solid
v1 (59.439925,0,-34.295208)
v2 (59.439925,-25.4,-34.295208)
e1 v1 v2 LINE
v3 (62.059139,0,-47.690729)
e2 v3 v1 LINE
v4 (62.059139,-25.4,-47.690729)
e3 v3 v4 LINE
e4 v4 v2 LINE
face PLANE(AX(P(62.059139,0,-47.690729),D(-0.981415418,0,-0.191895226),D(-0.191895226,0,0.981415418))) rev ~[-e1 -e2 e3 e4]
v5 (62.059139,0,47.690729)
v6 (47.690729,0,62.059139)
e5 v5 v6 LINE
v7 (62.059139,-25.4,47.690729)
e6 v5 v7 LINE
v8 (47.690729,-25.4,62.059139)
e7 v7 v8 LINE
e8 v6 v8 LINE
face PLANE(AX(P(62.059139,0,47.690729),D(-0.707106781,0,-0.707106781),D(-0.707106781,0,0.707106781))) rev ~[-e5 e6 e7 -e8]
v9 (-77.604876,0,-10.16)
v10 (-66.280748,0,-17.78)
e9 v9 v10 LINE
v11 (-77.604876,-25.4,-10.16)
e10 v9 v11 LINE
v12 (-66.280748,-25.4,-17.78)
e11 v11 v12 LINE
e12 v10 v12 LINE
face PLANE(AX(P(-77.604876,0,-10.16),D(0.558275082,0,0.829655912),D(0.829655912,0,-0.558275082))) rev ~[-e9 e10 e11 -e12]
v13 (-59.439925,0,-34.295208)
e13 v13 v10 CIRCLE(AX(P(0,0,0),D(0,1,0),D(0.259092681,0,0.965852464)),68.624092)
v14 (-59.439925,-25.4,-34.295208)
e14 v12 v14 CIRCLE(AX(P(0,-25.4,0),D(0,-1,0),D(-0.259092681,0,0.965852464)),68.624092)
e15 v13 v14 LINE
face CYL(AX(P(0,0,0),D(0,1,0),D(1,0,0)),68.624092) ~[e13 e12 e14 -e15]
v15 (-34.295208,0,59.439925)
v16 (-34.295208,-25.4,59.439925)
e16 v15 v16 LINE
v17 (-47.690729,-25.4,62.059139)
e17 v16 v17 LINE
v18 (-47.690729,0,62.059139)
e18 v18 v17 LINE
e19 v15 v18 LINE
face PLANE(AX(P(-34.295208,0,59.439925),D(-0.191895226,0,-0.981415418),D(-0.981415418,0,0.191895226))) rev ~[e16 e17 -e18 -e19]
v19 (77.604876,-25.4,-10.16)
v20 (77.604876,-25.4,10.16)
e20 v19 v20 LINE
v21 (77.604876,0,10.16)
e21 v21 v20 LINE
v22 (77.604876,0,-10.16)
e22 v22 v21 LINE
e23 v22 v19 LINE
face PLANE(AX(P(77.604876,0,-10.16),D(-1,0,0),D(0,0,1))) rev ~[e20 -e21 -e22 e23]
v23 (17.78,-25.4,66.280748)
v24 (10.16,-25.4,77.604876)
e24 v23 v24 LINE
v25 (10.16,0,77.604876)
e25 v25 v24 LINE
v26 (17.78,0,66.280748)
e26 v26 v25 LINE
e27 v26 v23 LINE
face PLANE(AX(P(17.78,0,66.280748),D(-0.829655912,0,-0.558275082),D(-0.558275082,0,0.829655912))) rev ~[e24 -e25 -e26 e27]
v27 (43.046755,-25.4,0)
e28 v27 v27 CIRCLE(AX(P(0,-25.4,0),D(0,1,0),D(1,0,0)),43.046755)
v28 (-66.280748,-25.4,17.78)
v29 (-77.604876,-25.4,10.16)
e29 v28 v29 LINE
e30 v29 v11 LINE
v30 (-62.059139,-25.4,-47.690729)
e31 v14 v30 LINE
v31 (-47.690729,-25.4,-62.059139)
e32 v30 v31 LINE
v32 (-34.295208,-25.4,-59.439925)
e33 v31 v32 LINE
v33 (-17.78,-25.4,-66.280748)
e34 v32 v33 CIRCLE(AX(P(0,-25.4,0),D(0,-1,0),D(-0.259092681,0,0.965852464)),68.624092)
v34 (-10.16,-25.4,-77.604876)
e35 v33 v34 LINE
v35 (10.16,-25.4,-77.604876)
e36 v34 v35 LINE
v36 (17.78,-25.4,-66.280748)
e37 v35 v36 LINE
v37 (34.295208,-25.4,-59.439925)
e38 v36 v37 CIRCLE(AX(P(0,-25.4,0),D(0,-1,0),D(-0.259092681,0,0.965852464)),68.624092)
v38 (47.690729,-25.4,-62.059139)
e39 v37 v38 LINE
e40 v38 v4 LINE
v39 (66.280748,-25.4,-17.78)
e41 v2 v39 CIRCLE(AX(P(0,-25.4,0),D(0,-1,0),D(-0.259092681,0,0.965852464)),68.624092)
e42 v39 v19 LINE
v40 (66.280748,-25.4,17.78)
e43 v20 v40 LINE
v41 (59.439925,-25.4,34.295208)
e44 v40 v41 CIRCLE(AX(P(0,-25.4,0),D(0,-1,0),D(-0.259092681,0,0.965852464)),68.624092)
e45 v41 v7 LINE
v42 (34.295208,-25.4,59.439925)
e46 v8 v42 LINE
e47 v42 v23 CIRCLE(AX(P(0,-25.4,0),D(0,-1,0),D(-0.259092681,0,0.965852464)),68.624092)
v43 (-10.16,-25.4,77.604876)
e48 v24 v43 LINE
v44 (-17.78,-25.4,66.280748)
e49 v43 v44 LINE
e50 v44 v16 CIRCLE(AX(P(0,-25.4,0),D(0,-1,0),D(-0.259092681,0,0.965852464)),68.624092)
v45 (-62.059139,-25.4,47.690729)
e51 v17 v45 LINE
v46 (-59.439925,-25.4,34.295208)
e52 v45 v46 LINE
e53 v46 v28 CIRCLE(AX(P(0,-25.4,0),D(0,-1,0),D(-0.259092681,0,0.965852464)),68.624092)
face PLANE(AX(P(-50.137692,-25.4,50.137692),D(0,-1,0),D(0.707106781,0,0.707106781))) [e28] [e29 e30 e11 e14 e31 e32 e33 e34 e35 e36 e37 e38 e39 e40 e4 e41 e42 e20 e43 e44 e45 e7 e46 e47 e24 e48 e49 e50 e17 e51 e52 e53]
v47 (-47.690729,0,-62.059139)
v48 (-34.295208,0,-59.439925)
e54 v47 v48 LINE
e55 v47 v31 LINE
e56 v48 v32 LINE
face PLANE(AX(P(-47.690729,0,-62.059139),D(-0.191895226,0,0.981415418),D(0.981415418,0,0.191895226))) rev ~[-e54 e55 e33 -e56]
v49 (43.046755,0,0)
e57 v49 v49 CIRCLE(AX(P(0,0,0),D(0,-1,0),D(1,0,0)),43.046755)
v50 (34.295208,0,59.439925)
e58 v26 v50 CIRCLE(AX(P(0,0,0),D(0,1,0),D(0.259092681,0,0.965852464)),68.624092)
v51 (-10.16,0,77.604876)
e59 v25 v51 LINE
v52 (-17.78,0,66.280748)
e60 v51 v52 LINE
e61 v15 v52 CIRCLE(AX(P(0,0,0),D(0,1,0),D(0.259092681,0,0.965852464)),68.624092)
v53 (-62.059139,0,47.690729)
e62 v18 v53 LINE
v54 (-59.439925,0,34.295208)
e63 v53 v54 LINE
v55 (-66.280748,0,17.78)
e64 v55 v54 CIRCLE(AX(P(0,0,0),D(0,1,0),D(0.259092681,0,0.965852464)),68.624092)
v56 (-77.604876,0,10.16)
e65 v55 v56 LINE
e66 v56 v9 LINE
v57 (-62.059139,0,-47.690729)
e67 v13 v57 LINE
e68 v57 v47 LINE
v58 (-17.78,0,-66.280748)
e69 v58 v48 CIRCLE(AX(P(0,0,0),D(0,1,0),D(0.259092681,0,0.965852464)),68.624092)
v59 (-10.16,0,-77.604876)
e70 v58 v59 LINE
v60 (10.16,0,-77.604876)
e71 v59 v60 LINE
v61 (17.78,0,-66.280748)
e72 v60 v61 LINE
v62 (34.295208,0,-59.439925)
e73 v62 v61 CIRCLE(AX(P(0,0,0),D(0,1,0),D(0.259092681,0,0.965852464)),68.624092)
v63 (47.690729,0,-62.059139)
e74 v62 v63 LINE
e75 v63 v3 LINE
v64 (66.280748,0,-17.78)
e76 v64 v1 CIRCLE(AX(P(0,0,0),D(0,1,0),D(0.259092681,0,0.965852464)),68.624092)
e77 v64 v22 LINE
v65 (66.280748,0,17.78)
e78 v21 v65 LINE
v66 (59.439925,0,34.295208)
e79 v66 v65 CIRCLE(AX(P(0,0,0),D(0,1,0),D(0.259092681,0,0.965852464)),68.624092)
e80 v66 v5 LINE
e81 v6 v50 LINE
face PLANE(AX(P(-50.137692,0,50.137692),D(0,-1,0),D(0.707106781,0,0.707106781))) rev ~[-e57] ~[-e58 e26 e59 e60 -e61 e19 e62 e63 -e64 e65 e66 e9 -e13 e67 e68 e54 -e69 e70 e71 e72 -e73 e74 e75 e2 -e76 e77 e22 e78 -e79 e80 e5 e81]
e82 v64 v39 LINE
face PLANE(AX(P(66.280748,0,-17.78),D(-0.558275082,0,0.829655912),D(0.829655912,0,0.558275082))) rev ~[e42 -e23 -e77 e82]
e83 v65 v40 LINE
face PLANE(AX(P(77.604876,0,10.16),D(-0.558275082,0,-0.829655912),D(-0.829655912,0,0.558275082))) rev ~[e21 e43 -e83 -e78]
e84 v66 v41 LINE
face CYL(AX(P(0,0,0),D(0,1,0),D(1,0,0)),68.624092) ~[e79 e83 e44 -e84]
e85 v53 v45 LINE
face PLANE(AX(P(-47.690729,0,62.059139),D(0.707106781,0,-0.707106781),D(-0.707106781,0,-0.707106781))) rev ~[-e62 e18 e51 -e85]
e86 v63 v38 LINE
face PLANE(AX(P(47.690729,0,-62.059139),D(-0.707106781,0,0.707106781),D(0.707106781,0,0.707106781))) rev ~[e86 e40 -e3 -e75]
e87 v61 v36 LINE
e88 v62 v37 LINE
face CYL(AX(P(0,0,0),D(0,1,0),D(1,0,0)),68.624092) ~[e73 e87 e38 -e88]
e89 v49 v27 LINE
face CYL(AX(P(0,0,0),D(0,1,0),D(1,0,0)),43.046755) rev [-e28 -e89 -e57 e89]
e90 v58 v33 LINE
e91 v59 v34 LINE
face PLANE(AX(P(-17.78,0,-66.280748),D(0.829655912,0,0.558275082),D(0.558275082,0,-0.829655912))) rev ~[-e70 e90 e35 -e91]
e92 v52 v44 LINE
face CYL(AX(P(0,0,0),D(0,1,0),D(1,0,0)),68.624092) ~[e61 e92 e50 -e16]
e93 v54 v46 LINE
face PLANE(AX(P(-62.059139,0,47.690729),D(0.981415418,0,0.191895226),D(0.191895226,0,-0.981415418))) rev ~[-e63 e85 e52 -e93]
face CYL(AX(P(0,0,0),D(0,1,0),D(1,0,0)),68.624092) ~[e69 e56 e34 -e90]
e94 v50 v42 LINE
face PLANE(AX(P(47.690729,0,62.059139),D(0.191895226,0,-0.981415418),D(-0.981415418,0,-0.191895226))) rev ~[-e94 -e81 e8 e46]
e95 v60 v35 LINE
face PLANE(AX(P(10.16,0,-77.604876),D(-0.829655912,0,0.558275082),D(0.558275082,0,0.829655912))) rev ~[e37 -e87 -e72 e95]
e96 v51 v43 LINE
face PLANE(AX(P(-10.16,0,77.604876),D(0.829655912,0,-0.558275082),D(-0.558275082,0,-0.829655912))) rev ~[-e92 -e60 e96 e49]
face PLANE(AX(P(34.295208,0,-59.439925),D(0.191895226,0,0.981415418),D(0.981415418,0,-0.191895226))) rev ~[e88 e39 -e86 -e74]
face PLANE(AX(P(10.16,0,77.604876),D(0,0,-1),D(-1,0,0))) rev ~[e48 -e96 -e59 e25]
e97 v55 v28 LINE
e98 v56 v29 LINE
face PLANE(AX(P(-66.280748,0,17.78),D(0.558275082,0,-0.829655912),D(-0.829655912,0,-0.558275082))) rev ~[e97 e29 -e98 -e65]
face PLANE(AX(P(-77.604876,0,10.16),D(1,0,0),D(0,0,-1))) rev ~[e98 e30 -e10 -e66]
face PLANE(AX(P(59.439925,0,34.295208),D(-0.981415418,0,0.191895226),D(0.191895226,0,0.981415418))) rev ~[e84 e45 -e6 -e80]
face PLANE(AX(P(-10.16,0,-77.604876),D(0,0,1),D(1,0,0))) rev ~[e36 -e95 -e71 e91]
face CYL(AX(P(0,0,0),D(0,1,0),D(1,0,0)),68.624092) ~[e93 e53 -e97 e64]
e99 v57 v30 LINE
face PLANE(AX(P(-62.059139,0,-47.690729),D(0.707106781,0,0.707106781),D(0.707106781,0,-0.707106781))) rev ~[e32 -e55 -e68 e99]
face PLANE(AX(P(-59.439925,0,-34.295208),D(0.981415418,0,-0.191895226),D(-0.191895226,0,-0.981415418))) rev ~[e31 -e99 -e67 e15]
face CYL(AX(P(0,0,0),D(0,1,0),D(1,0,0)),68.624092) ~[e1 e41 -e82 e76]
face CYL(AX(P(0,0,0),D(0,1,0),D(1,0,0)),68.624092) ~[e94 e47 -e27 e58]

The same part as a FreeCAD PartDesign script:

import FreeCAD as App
import Part
import Sketcher
Q = App.Units.Quantity


def add_polygon(sketch, points):
    """Adds a closed chain of lines whose ends are joined by coincident constraints."""
    first, n = sketch.GeometryCount, len(points)
    for a, b in zip(points, points[1:] + points[:1]):
        sketch.addGeometry(Part.LineSegment(App.Vector(*a, 0), App.Vector(*b, 0)), False)
    for i in range(n):
        sketch.addConstraint(Sketcher.Constraint("Coincident", first + i, 2, first + (i + 1) % n, 1))

doc = App.newDocument("Part")
body = doc.addObject("PartDesign::Body", "Body")

# Sketch on XZ plane
sketch1 = body.newObject("Sketcher::SketchObject", "Sketch")
sketch1.AttachmentSupport = (doc.getObject("XZ_Plane"), [""])
sketch1.MapMode = "FlatFace"
sketch1.addGeometry([
    Part.Circle(App.Vector(0, 0, 0), App.Vector(0, 0, 1), 69),
    Part.Circle(App.Vector(0, 0, 0), App.Vector(0, 0, 1), 43),
], False)
sketch1.addConstraint([
    Sketcher.Constraint("Coincident", 0, 3, -1, 1),
    Sketcher.Constraint("Coincident", 1, 3, -1, 1),
    Sketcher.Constraint("Diameter", 1, Q("86.093511 mm")),
    Sketcher.Constraint("Diameter", 0, Q("137.248184 mm")),
])
pad1 = body.newObject("PartDesign::Pad", "Pad")
pad1.Profile = sketch1
pad1.Length = Q("1 in")

# Sketch on XZ plane
sketch2 = body.newObject("Sketcher::SketchObject", "Sketch001")
sketch2.AttachmentSupport = (doc.getObject("XZ_Plane"), [""])
sketch2.MapMode = "FlatFace"
add_polygon(sketch2, [(10, 78), (-10, 78), (-18, 66), (18, 66)])  # lines 0-3
sketch2.addConstraint([
    Sketcher.Constraint("Horizontal", 0),
    Sketcher.Constraint("Horizontal", 2),
    Sketcher.Constraint("Equal", 1, 3),
    Sketcher.Constraint("DistanceX", 0, 2, 0, 1, Q("0.8 in")),
    Sketcher.Constraint("DistanceX", 2, 1, 2, 2, Q("1.4 in")),
    Sketcher.Constraint("DistanceX", 0, 2, -1, 1, Q("0.4 in")),
    Sketcher.Constraint("DistanceY", -1, 1, 1, 2, Q("66.280748 mm")),
    Sketcher.Constraint("Distance", 1, Q("13.649185 mm")),
])
pad2 = body.newObject("PartDesign::Pad", "Pad001")
pad2.Profile = sketch2
pad2.Length = Q("1 in")
body2 = doc.addObject("PartDesign::Body", "Body001")
doc.recompute()

body2.BaseFeature = body
doc.recompute()

body3 = doc.addObject("PartDesign::Body", "Body002")
body3.BaseFeature = body
body3.Placement = App.Placement(App.Vector(0, 0, 0), App.Rotation(App.Vector(0, 1, 0), 45))
boolean = body2.newObject("PartDesign::Boolean", "Boolean")
boolean.Type = "Fuse"
boolean.addObjects([body3])
doc.recompute()

body4 = doc.addObject("PartDesign::Body", "Body003")
body4.BaseFeature = body
body4.Placement = App.Placement(App.Vector(0, 0, 0), App.Rotation(App.Vector(0, 1, 0), 90))
boolean2 = body2.newObject("PartDesign::Boolean", "Boolean001")
boolean2.Type = "Fuse"
boolean2.addObjects([body4])
doc.recompute()

body5 = doc.addObject("PartDesign::Body", "Body004")
body5.BaseFeature = body
body5.Placement = App.Placement(App.Vector(0, 0, 0), App.Rotation(App.Vector(0, 1, 0), 135))
boolean3 = body2.newObject("PartDesign::Boolean", "Boolean002")
boolean3.Type = "Fuse"
boolean3.addObjects([body5])
doc.recompute()

body6 = doc.addObject("PartDesign::Body", "Body005")
body6.BaseFeature = body
body6.Placement = App.Placement(App.Vector(0, 0, 0), App.Rotation(App.Vector(0, 1, 0), 180))
boolean4 = body2.newObject("PartDesign::Boolean", "Boolean003")
boolean4.Type = "Fuse"
boolean4.addObjects([body6])
doc.recompute()

body7 = doc.addObject("PartDesign::Body", "Body006")
body7.BaseFeature = body
body7.Placement = App.Placement(App.Vector(0, 0, 0), App.Rotation(App.Vector(0, 1, 0), 225))
boolean5 = body2.newObject("PartDesign::Boolean", "Boolean004")
boolean5.Type = "Fuse"
boolean5.addObjects([body7])
doc.recompute()

body8 = doc.addObject("PartDesign::Body", "Body007")
body8.BaseFeature = body
body8.Placement = App.Placement(App.Vector(0, 0, 0), App.Rotation(App.Vector(0, 1, 0), 270))
boolean6 = body2.newObject("PartDesign::Boolean", "Boolean005")
boolean6.Type = "Fuse"
boolean6.addObjects([body8])
doc.recompute()

body.Placement = App.Placement(App.Vector(0, 0, 0), App.Rotation(App.Vector(0, 1, 0), 315))
boolean7 = body2.newObject("PartDesign::Boolean", "Boolean006")
boolean7.Type = "Fuse"
boolean7.addObjects([body])

doc.recompute()
